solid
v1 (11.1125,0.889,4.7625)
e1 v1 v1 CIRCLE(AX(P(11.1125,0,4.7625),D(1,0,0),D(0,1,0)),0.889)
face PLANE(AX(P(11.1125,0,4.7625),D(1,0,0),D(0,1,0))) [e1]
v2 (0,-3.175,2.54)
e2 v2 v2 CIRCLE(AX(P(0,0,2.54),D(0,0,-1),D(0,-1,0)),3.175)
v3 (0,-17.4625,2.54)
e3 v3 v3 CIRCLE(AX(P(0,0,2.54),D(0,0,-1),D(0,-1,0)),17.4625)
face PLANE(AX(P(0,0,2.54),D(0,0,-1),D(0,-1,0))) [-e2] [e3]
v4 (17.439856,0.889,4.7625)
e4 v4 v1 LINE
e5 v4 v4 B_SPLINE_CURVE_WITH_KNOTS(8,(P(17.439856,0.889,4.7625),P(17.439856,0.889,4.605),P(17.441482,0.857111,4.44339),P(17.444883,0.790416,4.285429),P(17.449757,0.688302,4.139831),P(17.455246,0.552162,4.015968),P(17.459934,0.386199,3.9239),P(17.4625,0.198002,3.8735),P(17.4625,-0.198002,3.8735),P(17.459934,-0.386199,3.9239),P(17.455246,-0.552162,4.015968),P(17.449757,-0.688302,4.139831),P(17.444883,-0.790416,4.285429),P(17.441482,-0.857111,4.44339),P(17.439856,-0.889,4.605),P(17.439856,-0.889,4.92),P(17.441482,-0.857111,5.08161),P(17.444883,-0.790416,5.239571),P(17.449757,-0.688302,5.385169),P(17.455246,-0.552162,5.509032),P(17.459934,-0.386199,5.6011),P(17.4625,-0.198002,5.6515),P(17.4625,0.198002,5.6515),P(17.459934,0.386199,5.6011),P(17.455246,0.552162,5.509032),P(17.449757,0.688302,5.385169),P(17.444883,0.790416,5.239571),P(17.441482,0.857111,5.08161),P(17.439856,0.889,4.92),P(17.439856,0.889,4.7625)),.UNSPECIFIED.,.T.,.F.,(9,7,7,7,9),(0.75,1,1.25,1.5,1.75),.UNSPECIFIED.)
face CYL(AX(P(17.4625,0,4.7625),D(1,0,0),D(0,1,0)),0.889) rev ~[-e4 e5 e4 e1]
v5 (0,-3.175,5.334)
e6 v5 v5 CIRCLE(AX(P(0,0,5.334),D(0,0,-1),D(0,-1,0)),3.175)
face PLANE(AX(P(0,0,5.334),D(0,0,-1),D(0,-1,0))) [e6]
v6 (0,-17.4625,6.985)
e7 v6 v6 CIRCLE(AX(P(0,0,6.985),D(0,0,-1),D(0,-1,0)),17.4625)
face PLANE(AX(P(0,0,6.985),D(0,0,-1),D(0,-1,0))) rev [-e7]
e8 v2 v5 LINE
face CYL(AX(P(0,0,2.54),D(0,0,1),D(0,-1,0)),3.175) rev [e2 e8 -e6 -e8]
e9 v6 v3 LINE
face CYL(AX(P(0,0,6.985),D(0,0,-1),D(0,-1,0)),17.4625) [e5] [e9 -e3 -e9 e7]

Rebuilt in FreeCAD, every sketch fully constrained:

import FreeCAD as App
import Part
import Sketcher
Q = App.Units.Quantity

doc = App.newDocument("Part")
body = doc.addObject("PartDesign::Body", "Body")

# Sketch on YZ plane
sketch1 = body.newObject("Sketcher::SketchObject", "Sketch")
sketch1.AttachmentSupport = (doc.getObject("YZ_Plane"), [""])
sketch1.MapMode = "FlatFace"
sketch1.addGeometry([
    Part.LineSegment(App.Vector(-17.5, 2.5, 0), App.Vector(-3.2, 2.5, 0)),  # 0
    Part.LineSegment(App.Vector(-3.2, 2.5, 0), App.Vector(-3.2, 5.3, 0)),  # 1
    Part.LineSegment(App.Vector(-3.2, 5.3, 0), App.Vector(0, 5.3, 0)),  # 2
    Part.LineSegment(App.Vector(0, 5.3, 0), App.Vector(0, 7, 0)),  # 3
    Part.LineSegment(App.Vector(0, 7, 0), App.Vector(-17.5, 7, 0)),  # 4
    Part.LineSegment(App.Vector(-17.5, 7, 0), App.Vector(-17.5, 2.5, 0)),  # 5
], False)
sketch1.addConstraint([
    Sketcher.Constraint("Coincident", 0, 2, 1, 1),
    Sketcher.Constraint("Coincident", 1, 2, 2, 1),
    Sketcher.Constraint("Coincident", 2, 2, 3, 1),
    Sketcher.Constraint("Coincident", 3, 2, 4, 1),
    Sketcher.Constraint("Coincident", 4, 2, 5, 1),
    Sketcher.Constraint("Coincident", 5, 2, 0, 1),
    Sketcher.Constraint("Horizontal", 0),
    Sketcher.Constraint("Vertical", 1),
    Sketcher.Constraint("Horizontal", 2),
    Sketcher.Constraint("Vertical", 3),
    Sketcher.Constraint("Horizontal", 4),
    Sketcher.Constraint("Vertical", 5),
    Sketcher.Constraint("PointOnObject", 2, 2, -2),
    Sketcher.Constraint("DistanceY", 1, 1, 1, 2, Q("0.11 in")),
    Sketcher.Constraint("DistanceY", -1, 1, 0, 2, Q("0.1 in")),
    Sketcher.Constraint("DistanceX", 0, 1, 0, 2, Q("0.5625 in")),
    Sketcher.Constraint("DistanceX", 2, 1, 2, 2, Q("0.125 in")),
    Sketcher.Constraint("DistanceY", 3, 1, 3, 2, Q("0.065 in")),
])
revolution = body.newObject("PartDesign::Revolution", "Revolution")
revolution.Profile = sketch1
revolution.ReferenceAxis = (sketch1, ["V_Axis"])
revolution.Angle = 360

# Sketch on YZ plane
sketch2 = body.newObject("Sketcher::SketchObject", "Sketch001")
sketch2.AttachmentSupport = (doc.getObject("YZ_Plane"), [""])
sketch2.MapMode = "FlatFace"
sketch2.AttachmentOffset = App.Placement(App.Vector(0, 0, 0.6875 * 25.4), App.Rotation())
sketch2.addGeometry(Part.Circle(App.Vector(0, 4.8, 0), App.Vector(0, 0, 1), 0.9), False)
sketch2.addConstraint([
    Sketcher.Constraint("PointOnObject", 0, 3, -2),
    Sketcher.Constraint("Diameter", 0, Q("0.07 in")),
    Sketcher.Constraint("DistanceY", -1, 1, 0, 3, Q("0.1875 in")),
])
pocket1 = body.newObject("PartDesign::Pocket", "Pocket")
pocket1.Profile = sketch2
pocket1.Length = Q("0.25 in")

doc.recompute()
